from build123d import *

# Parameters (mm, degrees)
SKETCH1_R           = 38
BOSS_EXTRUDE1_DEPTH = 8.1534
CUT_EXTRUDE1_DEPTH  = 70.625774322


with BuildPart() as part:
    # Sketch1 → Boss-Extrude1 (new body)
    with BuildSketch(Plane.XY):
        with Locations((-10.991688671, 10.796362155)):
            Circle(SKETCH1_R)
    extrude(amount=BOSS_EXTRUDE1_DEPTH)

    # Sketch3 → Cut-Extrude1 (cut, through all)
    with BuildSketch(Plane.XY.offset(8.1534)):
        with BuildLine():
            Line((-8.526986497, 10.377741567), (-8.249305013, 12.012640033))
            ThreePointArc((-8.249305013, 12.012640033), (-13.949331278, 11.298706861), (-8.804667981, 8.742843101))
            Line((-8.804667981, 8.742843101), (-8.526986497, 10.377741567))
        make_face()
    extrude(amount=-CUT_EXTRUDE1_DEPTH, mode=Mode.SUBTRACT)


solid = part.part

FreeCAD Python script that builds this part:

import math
import FreeCAD as App
import Part
import Sketcher
from FreeCAD import Vector
Q = App.Units.Quantity

doc = App.newDocument("Part")
body = doc.addObject("PartDesign::Body", "Body")

sketch1 = body.newObject("Sketcher::SketchObject", "Sketch")
sketch1.AttachmentSupport = (doc.getObject("XY_Plane"), [""])
sketch1.MapMode = "FlatFace"
sketch1.addGeometry(Part.Circle(Vector(-11, 11, 0), Vector(0, 0, 1), 38), False)
sketch1.addConstraint([
    Sketcher.Constraint("Diameter", 0, Q("76 mm")),
    Sketcher.Constraint("DistanceX", 0, 3, -1, 1, Q("10.991689 mm")),
    Sketcher.Constraint("DistanceY", -1, 1, 0, 3, Q("10.796362 mm")),
])
pad1 = body.newObject("PartDesign::Pad", "Pad")
pad1.Profile = sketch1
pad1.Length = 8.1534

sketch2 = body.newObject("Sketcher::SketchObject", "Sketch001")
sketch2.AttachmentSupport = (doc.getObject("XY_Plane"), [""])
sketch2.MapMode = "FlatFace"
sketch2.AttachmentOffset = App.Placement(Vector(0, 0, 8.1534), App.Rotation())
sketch2.addGeometry([
    Part.ArcOfCircle(Part.Circle(Vector(-11, 10.8, 0), Vector(0, 0, 1), 3), math.radians(24), math.radians(317)),
    Part.LineSegment(Vector(-8.8, 8.7, 0), Vector(-8.2, 12, 0)),
], False)
sketch2.addConstraint([
    Sketcher.Constraint("Coincident", 0, 1, 1, 2),
    Sketcher.Constraint("Coincident", 1, 1, 0, 2),
    Sketcher.Constraint("Radius", 0, Q("3 mm")),
    Sketcher.Constraint("DistanceX", 0, 3, -1, 1, Q("10.991689 mm")),
    Sketcher.Constraint("DistanceY", -1, 1, 0, 1, Q("12.01264 mm")),
    Sketcher.Constraint("DistanceX", 0, 3, 1, 1, Q("2.187021 mm")),
    Sketcher.Constraint("Distance", 1, Q("3.316625 mm")),
])
pocket1 = body.newObject("PartDesign::Pocket", "Pocket")
pocket1.Profile = sketch2
pocket1.Type = "ThroughAll"

doc.recompute()
